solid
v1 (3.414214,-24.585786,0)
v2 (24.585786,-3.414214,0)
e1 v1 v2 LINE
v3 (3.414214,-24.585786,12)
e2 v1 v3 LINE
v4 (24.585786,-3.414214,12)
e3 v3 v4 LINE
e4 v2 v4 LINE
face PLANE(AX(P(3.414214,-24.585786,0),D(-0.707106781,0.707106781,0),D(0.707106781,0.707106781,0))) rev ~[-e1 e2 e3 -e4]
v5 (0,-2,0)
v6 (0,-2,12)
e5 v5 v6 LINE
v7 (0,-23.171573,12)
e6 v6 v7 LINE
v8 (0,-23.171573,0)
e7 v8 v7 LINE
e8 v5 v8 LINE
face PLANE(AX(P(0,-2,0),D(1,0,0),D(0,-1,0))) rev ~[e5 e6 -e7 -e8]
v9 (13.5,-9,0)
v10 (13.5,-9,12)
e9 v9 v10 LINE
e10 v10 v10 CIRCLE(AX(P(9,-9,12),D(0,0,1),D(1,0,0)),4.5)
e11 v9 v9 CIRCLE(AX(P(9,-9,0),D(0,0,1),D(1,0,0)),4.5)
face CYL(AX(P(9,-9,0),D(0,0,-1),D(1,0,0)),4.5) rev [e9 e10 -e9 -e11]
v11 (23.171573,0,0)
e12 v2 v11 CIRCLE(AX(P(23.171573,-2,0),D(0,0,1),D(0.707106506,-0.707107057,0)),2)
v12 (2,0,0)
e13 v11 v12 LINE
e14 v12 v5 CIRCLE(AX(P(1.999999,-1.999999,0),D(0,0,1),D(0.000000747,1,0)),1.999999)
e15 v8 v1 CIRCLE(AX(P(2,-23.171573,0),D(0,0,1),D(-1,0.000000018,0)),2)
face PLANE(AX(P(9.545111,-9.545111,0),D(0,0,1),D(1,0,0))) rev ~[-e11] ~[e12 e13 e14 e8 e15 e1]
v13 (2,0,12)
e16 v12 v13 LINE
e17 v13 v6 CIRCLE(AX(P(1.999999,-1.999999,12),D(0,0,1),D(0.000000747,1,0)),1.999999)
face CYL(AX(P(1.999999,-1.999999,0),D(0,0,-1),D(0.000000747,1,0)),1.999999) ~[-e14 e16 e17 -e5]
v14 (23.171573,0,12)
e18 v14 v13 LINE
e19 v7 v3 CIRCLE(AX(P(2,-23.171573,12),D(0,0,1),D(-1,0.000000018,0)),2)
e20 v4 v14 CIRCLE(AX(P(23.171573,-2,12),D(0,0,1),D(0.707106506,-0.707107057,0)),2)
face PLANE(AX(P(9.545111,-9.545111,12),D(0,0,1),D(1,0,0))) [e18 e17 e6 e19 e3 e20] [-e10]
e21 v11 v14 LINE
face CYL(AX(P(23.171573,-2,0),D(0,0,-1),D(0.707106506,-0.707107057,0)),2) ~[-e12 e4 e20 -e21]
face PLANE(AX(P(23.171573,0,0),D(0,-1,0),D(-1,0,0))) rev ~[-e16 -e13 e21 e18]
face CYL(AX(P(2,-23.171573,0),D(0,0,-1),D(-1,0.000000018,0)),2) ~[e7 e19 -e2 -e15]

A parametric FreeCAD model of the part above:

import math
import FreeCAD as App
import Part
import Sketcher
from FreeCAD import Vector

doc = App.newDocument("Part")
body = doc.addObject("PartDesign::Body", "Body")

sketch1 = body.newObject("Sketcher::SketchObject", "Sketch")
sketch1.AttachmentSupport = (doc.getObject("XY_Plane"), [""])
sketch1.MapMode = "FlatFace"
sketch1.addGeometry([
    Part.LineSegment(Vector(0, -2, 0), Vector(0, -23.171573, 0)),
    Part.ArcOfCircle(Part.Circle(Vector(2, -23.171573, 0), Vector(0, 0, 1), 2), math.radians(179.999999), math.radians(315.000022)),
    Part.LineSegment(Vector(3.414214, -24.585786, 0), Vector(24.585786, -3.414214, 0)),
    Part.ArcOfCircle(Part.Circle(Vector(23.171573, -2, 0), Vector(0, 0, 1), 2), math.radians(-45.000022), math.radians(90.000001)),
    Part.LineSegment(Vector(23.171573, 0, 0), Vector(2, 0, 0)),
    Part.ArcOfCircle(Part.Circle(Vector(1.999999, -1.999999, 0), Vector(0, 0, 1), 1.999999), math.radians(89.999957), math.radians(180.000043)),
    Part.Circle(Vector(9, -9, 0), Vector(0, 0, 1), 4.5),
], False)
sketch1.addConstraint([
    Sketcher.Constraint("Tangent", 0, 2, 1, 1),
    Sketcher.Constraint("Tangent", 1, 2, 2, 1),
    Sketcher.Constraint("Tangent", 2, 2, 3, 1),
    Sketcher.Constraint("Tangent", 3, 2, 4, 1),
    Sketcher.Constraint("Tangent", 4, 2, 5, 1),
    Sketcher.Constraint("Tangent", 5, 2, 0, 1),
    Sketcher.Constraint("Vertical", 0),
    Sketcher.Constraint("Horizontal", 4),
    Sketcher.Constraint("Equal", 1, 3),
    Sketcher.Constraint("Equal", 3, 5),
    Sketcher.Constraint("PointOnObject", 0, 2, -2),
    Sketcher.Constraint("PointOnObject", 3, 2, -1),
    Sketcher.Constraint("Equal", 4, 0),
    Sketcher.Constraint("Diameter", 6, 9.0),
    Sketcher.Constraint("Radius", 1, 2.0),
    Sketcher.Constraint("DistanceX", -1, 1, 6, 3, 9.0),
    Sketcher.Constraint("DistanceY", 6, 3, -1, 1, 9.0),
    Sketcher.Constraint("DistanceX", 4, 2, 4, 1, 21.171573),
])
pad1 = body.newObject("PartDesign::Pad", "Pad")
pad1.Profile = sketch1
pad1.Length = 12

doc.recompute()
